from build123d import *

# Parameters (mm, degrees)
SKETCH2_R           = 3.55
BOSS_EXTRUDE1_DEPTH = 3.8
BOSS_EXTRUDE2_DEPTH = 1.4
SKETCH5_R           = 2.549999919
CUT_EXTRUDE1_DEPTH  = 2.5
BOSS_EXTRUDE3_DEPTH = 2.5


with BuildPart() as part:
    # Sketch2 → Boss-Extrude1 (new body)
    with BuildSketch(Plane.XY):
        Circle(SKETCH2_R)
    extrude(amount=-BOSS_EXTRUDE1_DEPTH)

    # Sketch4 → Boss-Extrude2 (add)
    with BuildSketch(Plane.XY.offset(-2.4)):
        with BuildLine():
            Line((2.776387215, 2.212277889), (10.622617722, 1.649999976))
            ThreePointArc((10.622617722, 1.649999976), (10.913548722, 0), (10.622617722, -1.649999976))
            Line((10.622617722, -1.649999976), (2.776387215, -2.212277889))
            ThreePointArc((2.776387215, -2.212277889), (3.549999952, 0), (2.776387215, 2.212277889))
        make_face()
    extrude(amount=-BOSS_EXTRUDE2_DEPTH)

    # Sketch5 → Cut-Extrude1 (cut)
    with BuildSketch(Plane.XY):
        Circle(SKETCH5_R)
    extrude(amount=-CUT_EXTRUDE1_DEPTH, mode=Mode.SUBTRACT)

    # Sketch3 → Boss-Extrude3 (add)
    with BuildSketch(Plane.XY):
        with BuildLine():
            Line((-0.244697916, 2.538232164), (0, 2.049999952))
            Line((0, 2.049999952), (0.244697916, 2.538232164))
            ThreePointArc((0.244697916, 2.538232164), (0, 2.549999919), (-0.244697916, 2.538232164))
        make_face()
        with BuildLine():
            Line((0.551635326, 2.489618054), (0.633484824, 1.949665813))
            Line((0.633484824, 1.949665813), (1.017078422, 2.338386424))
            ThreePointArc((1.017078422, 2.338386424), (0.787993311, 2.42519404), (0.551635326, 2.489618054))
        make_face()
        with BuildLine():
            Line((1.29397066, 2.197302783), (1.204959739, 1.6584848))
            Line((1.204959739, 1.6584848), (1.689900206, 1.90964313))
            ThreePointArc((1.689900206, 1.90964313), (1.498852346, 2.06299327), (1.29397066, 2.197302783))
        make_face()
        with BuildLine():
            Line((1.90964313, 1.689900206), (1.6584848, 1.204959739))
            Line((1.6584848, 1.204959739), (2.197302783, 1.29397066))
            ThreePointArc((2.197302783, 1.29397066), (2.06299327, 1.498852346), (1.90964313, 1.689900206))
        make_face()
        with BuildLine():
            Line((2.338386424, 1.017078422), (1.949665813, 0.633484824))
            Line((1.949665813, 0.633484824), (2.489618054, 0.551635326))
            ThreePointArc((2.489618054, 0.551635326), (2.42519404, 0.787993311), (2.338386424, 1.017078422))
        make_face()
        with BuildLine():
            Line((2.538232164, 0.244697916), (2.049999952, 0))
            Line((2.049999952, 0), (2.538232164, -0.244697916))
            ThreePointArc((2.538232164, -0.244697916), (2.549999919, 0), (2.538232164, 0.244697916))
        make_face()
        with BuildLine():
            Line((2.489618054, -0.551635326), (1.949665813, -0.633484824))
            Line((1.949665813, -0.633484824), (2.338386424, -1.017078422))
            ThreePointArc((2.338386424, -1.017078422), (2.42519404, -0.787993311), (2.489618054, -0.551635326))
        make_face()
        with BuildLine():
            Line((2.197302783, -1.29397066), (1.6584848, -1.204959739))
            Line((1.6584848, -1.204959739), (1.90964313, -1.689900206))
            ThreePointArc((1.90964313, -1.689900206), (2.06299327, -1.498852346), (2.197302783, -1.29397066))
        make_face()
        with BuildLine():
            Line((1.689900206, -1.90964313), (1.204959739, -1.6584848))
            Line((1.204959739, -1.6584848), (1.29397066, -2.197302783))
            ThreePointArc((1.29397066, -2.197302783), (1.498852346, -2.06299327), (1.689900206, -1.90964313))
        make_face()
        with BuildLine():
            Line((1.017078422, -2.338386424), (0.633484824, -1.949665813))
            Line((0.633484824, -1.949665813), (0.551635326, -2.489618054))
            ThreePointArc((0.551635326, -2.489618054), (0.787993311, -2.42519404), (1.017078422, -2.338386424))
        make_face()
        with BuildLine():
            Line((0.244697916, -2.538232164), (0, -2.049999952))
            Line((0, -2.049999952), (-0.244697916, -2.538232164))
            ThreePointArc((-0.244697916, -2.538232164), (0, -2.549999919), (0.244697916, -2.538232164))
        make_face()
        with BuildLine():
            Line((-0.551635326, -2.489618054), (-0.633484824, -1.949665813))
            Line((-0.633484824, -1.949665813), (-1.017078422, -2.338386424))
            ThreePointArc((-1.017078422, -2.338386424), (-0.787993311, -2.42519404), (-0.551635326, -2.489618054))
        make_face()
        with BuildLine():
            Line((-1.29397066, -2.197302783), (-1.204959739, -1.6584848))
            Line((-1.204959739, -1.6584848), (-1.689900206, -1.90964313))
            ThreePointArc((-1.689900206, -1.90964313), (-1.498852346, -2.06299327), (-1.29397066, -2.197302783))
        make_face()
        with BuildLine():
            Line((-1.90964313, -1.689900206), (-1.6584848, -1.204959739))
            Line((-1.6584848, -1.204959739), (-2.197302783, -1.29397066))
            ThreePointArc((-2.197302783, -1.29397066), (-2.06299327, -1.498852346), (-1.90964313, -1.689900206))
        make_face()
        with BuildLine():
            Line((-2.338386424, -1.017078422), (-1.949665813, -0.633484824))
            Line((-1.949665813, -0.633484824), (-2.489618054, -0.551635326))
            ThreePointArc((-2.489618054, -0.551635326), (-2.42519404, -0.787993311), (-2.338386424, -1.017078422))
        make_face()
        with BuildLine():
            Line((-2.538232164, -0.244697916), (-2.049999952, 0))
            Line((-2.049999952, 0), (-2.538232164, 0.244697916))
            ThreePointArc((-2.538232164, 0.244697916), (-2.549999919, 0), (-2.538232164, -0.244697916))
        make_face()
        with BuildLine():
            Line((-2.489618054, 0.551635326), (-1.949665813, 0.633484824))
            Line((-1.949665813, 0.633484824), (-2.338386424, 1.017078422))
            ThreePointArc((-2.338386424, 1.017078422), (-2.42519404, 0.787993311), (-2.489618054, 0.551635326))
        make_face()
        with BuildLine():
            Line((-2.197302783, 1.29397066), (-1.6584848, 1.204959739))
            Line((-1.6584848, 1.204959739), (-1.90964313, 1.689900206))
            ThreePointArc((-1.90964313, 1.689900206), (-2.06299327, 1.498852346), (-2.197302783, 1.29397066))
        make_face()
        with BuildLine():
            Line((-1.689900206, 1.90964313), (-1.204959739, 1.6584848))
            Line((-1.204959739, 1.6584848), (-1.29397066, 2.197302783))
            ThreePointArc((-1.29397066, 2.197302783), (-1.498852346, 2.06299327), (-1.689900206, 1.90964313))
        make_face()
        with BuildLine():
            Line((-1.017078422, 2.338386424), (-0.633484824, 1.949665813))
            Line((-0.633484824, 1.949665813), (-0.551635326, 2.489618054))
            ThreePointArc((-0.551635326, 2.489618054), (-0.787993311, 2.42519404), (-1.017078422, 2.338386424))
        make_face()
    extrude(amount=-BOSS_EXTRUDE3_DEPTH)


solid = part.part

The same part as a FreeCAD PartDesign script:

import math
import FreeCAD as App
import Part
import Sketcher

doc = App.newDocument("Part")
body = doc.addObject("PartDesign::Body", "Body")

# Sketch on XY plane
sketch1 = body.newObject("Sketcher::SketchObject", "Sketch")
sketch1.AttachmentSupport = (doc.getObject("XY_Plane"), [""])
sketch1.MapMode = "FlatFace"
sketch1.addGeometry(Part.Circle(App.Vector(0, 0, 0), App.Vector(0, 0, 1), 3.5), False)
sketch1.addConstraint([
    Sketcher.Constraint("Coincident", 0, 3, -1, 1),
    Sketcher.Constraint("Diameter", 0, 7.1),
])
pad1 = body.newObject("PartDesign::Pad", "Pad")
pad1.Profile = sketch1
pad1.Length = 3.8
pad1.Reversed = True

# Sketch on XY plane
sketch2 = body.newObject("Sketcher::SketchObject", "Sketch001")
sketch2.AttachmentSupport = (doc.getObject("XY_Plane"), [""])
sketch2.MapMode = "FlatFace"
sketch2.AttachmentOffset = App.Placement(App.Vector(0, 0, -2.4), App.Rotation())
sketch2.addGeometry([
    Part.LineSegment(App.Vector(10.6, 1.6, 0), App.Vector(2.8, 2.2, 0)),
    Part.ArcOfCircle(Part.Circle(App.Vector(0, 0, 0), App.Vector(0, 0, 1), 3.5), math.radians(-39), math.radians(39)),
    Part.LineSegment(App.Vector(2.8, -2.2, 0), App.Vector(10.6, -1.6, 0)),
    Part.ArcOfCircle(Part.Circle(App.Vector(6.1, 0, 0), App.Vector(0, 0, 1), 4.8), math.radians(-20), math.radians(20)),
], False)
sketch2.addConstraint([
    Sketcher.Constraint("Coincident", 0, 2, 1, 2),
    Sketcher.Constraint("Coincident", 1, 1, 2, 1),
    Sketcher.Constraint("Coincident", 2, 2, 3, 1),
    Sketcher.Constraint("Coincident", 3, 2, 0, 1),
    Sketcher.Constraint("Coincident", 1, 3, -1, 1),
    Sketcher.Constraint("Symmetric", 2, 2, 3, 2, -1),
    Sketcher.Constraint("Vertical", 0, 2, 1, 1),
    Sketcher.Constraint("Radius", 1, 3.55),
    Sketcher.Constraint("DistanceY", 2, 2, 3, 2, 3.3),
    Sketcher.Constraint("Radius", 3, 4.82441),
    Sketcher.Constraint("Distance", 0, 7.866352),
    Sketcher.Constraint("DistanceX", -1, 1, 3, 3, 6.089139),
])
pad2 = body.newObject("PartDesign::Pad", "Pad001")
pad2.Profile = sketch2
pad2.Length = 1.4
pad2.Reversed = True

# Sketch on XY plane
sketch3 = body.newObject("Sketcher::SketchObject", "Sketch002")
sketch3.AttachmentSupport = (doc.getObject("XY_Plane"), [""])
sketch3.MapMode = "FlatFace"
sketch3.addGeometry(Part.Circle(App.Vector(0, 0, 0), App.Vector(0, 0, 1), 2.5), False)
sketch3.addConstraint([
    Sketcher.Constraint("Coincident", 0, 3, -1, 1),
    Sketcher.Constraint("Diameter", 0, 5.1),
])
pocket1 = body.newObject("PartDesign::Pocket", "Pocket")
pocket1.Profile = sketch3
pocket1.Length = 2.5

# Sketch on XY plane
sketch4 = body.newObject("Sketcher::SketchObject", "Sketch003")
sketch4.AttachmentSupport = (doc.getObject("XY_Plane"), [""])
sketch4.MapMode = "FlatFace"
sketch4.addGeometry([
    Part.LineSegment(App.Vector(-0.24, 2.54, 0), App.Vector(0, 2.05, 0)),  # 0
    Part.LineSegment(App.Vector(0, 2.05, 0), App.Vector(0.24, 2.54, 0)),  # 1
    Part.ArcOfCircle(Part.Circle(App.Vector(0, 0, 0), App.Vector(0, 0, 1), 2.55), math.radians(84.49), math.radians(95.51)),  # 2
    Part.LineSegment(App.Vector(0.55, 2.49, 0), App.Vector(0.63, 1.95, 0)),  # 3
    Part.LineSegment(App.Vector(0.63, 1.95, 0), App.Vector(1.02, 2.34, 0)),  # 4
    Part.ArcOfCircle(Part.Circle(App.Vector(0, 0, 0), App.Vector(0, 0, 1), 2.55), math.radians(66.49), math.radians(77.51)),  # 5
    Part.LineSegment(App.Vector(1.29, 2.2, 0), App.Vector(1.2, 1.66, 0)),  # 6
    Part.LineSegment(App.Vector(1.2, 1.66, 0), App.Vector(1.69, 1.91, 0)),  # 7
    Part.ArcOfCircle(Part.Circle(App.Vector(0, 0, 0), App.Vector(0, 0, 1), 2.55), math.radians(48.49), math.radians(59.51)),  # 8
    Part.LineSegment(App.Vector(1.91, 1.69, 0), App.Vector(1.66, 1.2, 0)),  # 9
    Part.LineSegment(App.Vector(1.66, 1.2, 0), App.Vector(2.2, 1.29, 0)),  # 10
    Part.ArcOfCircle(Part.Circle(App.Vector(0, 0, 0), App.Vector(0, 0, 1), 2.55), math.radians(30.49), math.radians(41.51)),  # 11
    Part.LineSegment(App.Vector(2.34, 1.02, 0), App.Vector(1.95, 0.63, 0)),  # 12
    Part.LineSegment(App.Vector(1.95, 0.63, 0), App.Vector(2.49, 0.55, 0)),  # 13
    Part.ArcOfCircle(Part.Circle(App.Vector(0, 0, 0), App.Vector(0, 0, 1), 2.55), math.radians(12.49), math.radians(23.51)),  # 14
    Part.LineSegment(App.Vector(2.54, 0.24, 0), App.Vector(2.05, 0, 0)),  # 15
    Part.LineSegment(App.Vector(2.05, 0, 0), App.Vector(2.54, -0.24, 0)),  # 16
    Part.ArcOfCircle(Part.Circle(App.Vector(0, 0, 0), App.Vector(0, 0, 1), 2.55), math.radians(-5.51), math.radians(5.51)),  # 17
    Part.LineSegment(App.Vector(2.49, -0.55, 0), App.Vector(1.95, -0.63, 0)),  # 18
    Part.LineSegment(App.Vector(1.95, -0.63, 0), App.Vector(2.34, -1.02, 0)),  # 19
    Part.ArcOfCircle(Part.Circle(App.Vector(0, 0, 0), App.Vector(0, 0, 1), 2.55), math.radians(-23.51), math.radians(-12.49)),  # 20
    Part.LineSegment(App.Vector(2.2, -1.29, 0), App.Vector(1.66, -1.2, 0)),  # 21
    Part.LineSegment(App.Vector(1.66, -1.2, 0), App.Vector(1.91, -1.69, 0)),  # 22
    Part.ArcOfCircle(Part.Circle(App.Vector(0, 0, 0), App.Vector(0, 0, 1), 2.55), math.radians(-41.51), math.radians(-30.49)),  # 23
    Part.LineSegment(App.Vector(1.69, -1.91, 0), App.Vector(1.2, -1.66, 0)),  # 24
    Part.LineSegment(App.Vector(1.2, -1.66, 0), App.Vector(1.29, -2.2, 0)),  # 25
    Part.ArcOfCircle(Part.Circle(App.Vector(0, 0, 0), App.Vector(0, 0, 1), 2.55), math.radians(-59.51), math.radians(-48.49)),  # 26
    Part.LineSegment(App.Vector(1.02, -2.34, 0), App.Vector(0.63, -1.95, 0)),  # 27
    Part.LineSegment(App.Vector(0.63, -1.95, 0), App.Vector(0.55, -2.49, 0)),  # 28
    Part.ArcOfCircle(Part.Circle(App.Vector(0, 0, 0), App.Vector(0, 0, 1), 2.55), math.radians(-77.51), math.radians(-66.49)),  # 29
    Part.LineSegment(App.Vector(0.24, -2.54, 0), App.Vector(0, -2.05, 0)),  # 30
    Part.LineSegment(App.Vector(0, -2.05, 0), App.Vector(-0.24, -2.54, 0)),  # 31
    Part.ArcOfCircle(Part.Circle(App.Vector(0, 0, 0), App.Vector(0, 0, 1), 2.55), math.radians(-95.51), math.radians(-84.49)),  # 32
    Part.LineSegment(App.Vector(-0.55, -2.49, 0), App.Vector(-0.63, -1.95, 0)),  # 33
    Part.LineSegment(App.Vector(-0.63, -1.95, 0), App.Vector(-1.02, -2.34, 0)),  # 34
    Part.ArcOfCircle(Part.Circle(App.Vector(0, 0, 0), App.Vector(0, 0, 1), 2.55), math.radians(-113.51), math.radians(-102.49)),  # 35
    Part.LineSegment(App.Vector(-1.29, -2.2, 0), App.Vector(-1.2, -1.66, 0)),  # 36
    Part.LineSegment(App.Vector(-1.2, -1.66, 0), App.Vector(-1.69, -1.91, 0)),  # 37
    Part.ArcOfCircle(Part.Circle(App.Vector(0, 0, 0), App.Vector(0, 0, 1), 2.55), math.radians(-131.51), math.radians(-120.49)),  # 38
    Part.LineSegment(App.Vector(-1.91, -1.69, 0), App.Vector(-1.66, -1.2, 0)),  # 39
    Part.LineSegment(App.Vector(-1.66, -1.2, 0), App.Vector(-2.2, -1.29, 0)),  # 40
    Part.ArcOfCircle(Part.Circle(App.Vector(0, 0, 0), App.Vector(0, 0, 1), 2.55), math.radians(-149.51), math.radians(-138.49)),  # 41
    Part.LineSegment(App.Vector(-2.34, -1.02, 0), App.Vector(-1.95, -0.63, 0)),  # 42
    Part.LineSegment(App.Vector(-1.95, -0.63, 0), App.Vector(-2.49, -0.55, 0)),  # 43
    Part.ArcOfCircle(Part.Circle(App.Vector(0, 0, 0), App.Vector(0, 0, 1), 2.55), math.radians(-167.51), math.radians(-156.49)),  # 44
    Part.LineSegment(App.Vector(-2.54, -0.24, 0), App.Vector(-2.05, 0, 0)),  # 45
    Part.LineSegment(App.Vector(-2.05, 0, 0), App.Vector(-2.54, 0.24, 0)),  # 46
    Part.ArcOfCircle(Part.Circle(App.Vector(0, 0, 0), App.Vector(0, 0, 1), 2.55), math.radians(174.49), math.radians(185.51)),  # 47
    Part.LineSegment(App.Vector(-2.49, 0.55, 0), App.Vector(-1.95, 0.63, 0)),  # 48
    Part.LineSegment(App.Vector(-1.95, 0.63, 0), App.Vector(-2.34, 1.02, 0)),  # 49
    Part.ArcOfCircle(Part.Circle(App.Vector(0, 0, 0), App.Vector(0, 0, 1), 2.55), math.radians(156.49), math.radians(167.51)),  # 50
    Part.LineSegment(App.Vector(-2.2, 1.29, 0), App.Vector(-1.66, 1.2, 0)),  # 51
    Part.LineSegment(App.Vector(-1.66, 1.2, 0), App.Vector(-1.91, 1.69, 0)),  # 52
    Part.ArcOfCircle(Part.Circle(App.Vector(0, 0, 0), App.Vector(0, 0, 1), 2.55), math.radians(138.49), math.radians(149.51)),  # 53
    Part.LineSegment(App.Vector(-1.69, 1.91, 0), App.Vector(-1.2, 1.66, 0)),  # 54
    Part.LineSegment(App.Vector(-1.2, 1.66, 0), App.Vector(-1.29, 2.2, 0)),  # 55
    Part.ArcOfCircle(Part.Circle(App.Vector(0, 0, 0), App.Vector(0, 0, 1), 2.55), math.radians(120.49), math.radians(131.51)),  # 56
    Part.LineSegment(App.Vector(-1.02, 2.34, 0), App.Vector(-0.63, 1.95, 0)),  # 57
    Part.LineSegment(App.Vector(-0.63, 1.95, 0), App.Vector(-0.55, 2.49, 0)),  # 58
    Part.ArcOfCircle(Part.Circle(App.Vector(0, 0, 0), App.Vector(0, 0, 1), 2.55), math.radians(102.49), math.radians(113.51)),  # 59
], False)
sketch4.addConstraint([
    Sketcher.Constraint("Coincident", 0, 2, 1, 1),
    Sketcher.Constraint("Coincident", 1, 2, 2, 1),
    Sketcher.Constraint("Coincident", 2, 2, 0, 1),
    Sketcher.Constraint("Coincident", 3, 2, 4, 1),
    Sketcher.Constraint("Coincident", 4, 2, 5, 1),
    Sketcher.Constraint("Coincident", 5, 2, 3, 1),
    Sketcher.Constraint("Coincident", 6, 2, 7, 1),
    Sketcher.Constraint("Coincident", 7, 2, 8, 1),
    Sketcher.Constraint("Coincident", 8, 2, 6, 1),
    Sketcher.Constraint("Coincident", 9, 2, 10, 1),
    Sketcher.Constraint("Coincident", 10, 2, 11, 1),
    Sketcher.Constraint("Coincident", 11, 2, 9, 1),
    Sketcher.Constraint("Coincident", 12, 2, 13, 1),
    Sketcher.Constraint("Coincident", 13, 2, 14, 1),
    Sketcher.Constraint("Coincident", 14, 2, 12, 1),
    Sketcher.Constraint("Coincident", 15, 2, 16, 1),
    Sketcher.Constraint("Coincident", 16, 2, 17, 1),
    Sketcher.Constraint("Coincident", 17, 2, 15, 1),
    Sketcher.Constraint("Coincident", 18, 2, 19, 1),
    Sketcher.Constraint("Coincident", 19, 2, 20, 1),
    Sketcher.Constraint("Coincident", 20, 2, 18, 1),
    Sketcher.Constraint("Coincident", 21, 2, 22, 1),
    Sketcher.Constraint("Coincident", 22, 2, 23, 1),
    Sketcher.Constraint("Coincident", 23, 2, 21, 1),
    Sketcher.Constraint("Coincident", 24, 2, 25, 1),
    Sketcher.Constraint("Coincident", 25, 2, 26, 1),
    Sketcher.Constraint("Coincident", 26, 2, 24, 1),
    Sketcher.Constraint("Coincident", 27, 2, 28, 1),
    Sketcher.Constraint("Coincident", 28, 2, 29, 1),
    Sketcher.Constraint("Coincident", 29, 2, 27, 1),
    Sketcher.Constraint("Coincident", 30, 2, 31, 1),
    Sketcher.Constraint("Coincident", 31, 2, 32, 1),
    Sketcher.Constraint("Coincident", 32, 2, 30, 1),
    Sketcher.Constraint("Coincident", 33, 2, 34, 1),
    Sketcher.Constraint("Coincident", 34, 2, 35, 1),
    Sketcher.Constraint("Coincident", 35, 2, 33, 1),
    Sketcher.Constraint("Coincident", 36, 2, 37, 1),
    Sketcher.Constraint("Coincident", 37, 2, 38, 1),
    Sketcher.Constraint("Coincident", 38, 2, 36, 1),
    Sketcher.Constraint("Coincident", 39, 2, 40, 1),
    Sketcher.Constraint("Coincident", 40, 2, 41, 1),
    Sketcher.Constraint("Coincident", 41, 2, 39, 1),
    Sketcher.Constraint("Coincident", 42, 2, 43, 1),
    Sketcher.Constraint("Coincident", 43, 2, 44, 1),
    Sketcher.Constraint("Coincident", 44, 2, 42, 1),
    Sketcher.Constraint("Coincident", 45, 2, 46, 1),
    Sketcher.Constraint("Coincident", 46, 2, 47, 1),
    Sketcher.Constraint("Coincident", 47, 2, 45, 1),
    Sketcher.Constraint("Coincident", 48, 2, 49, 1),
    Sketcher.Constraint("Coincident", 49, 2, 50, 1),
    Sketcher.Constraint("Coincident", 50, 2, 48, 1),
    Sketcher.Constraint("Coincident", 51, 2, 52, 1),
    Sketcher.Constraint("Coincident", 52, 2, 53, 1),
    Sketcher.Constraint("Coincident", 53, 2, 51, 1),
    Sketcher.Constraint("Coincident", 54, 2, 55, 1),
    Sketcher.Constraint("Coincident", 55, 2, 56, 1),
    Sketcher.Constraint("Coincident", 56, 2, 54, 1),
    Sketcher.Constraint("Coincident", 57, 2, 58, 1),
    Sketcher.Constraint("Coincident", 58, 2, 59, 1),
    Sketcher.Constraint("Coincident", 59, 2, 57, 1),
    Sketcher.Constraint("Coincident", 2, 3, -1, 1),
    Sketcher.Constraint("Coincident", 5, 3, -1, 1),
    Sketcher.Constraint("Coincident", 8, 3, -1, 1),
    Sketcher.Constraint("Coincident", 11, 3, -1, 1),
    Sketcher.Constraint("Coincident", 14, 3, -1, 1),
    Sketcher.Constraint("Coincident", 17, 3, -1, 1),
    Sketcher.Constraint("Coincident", 20, 3, -1, 1),
    Sketcher.Constraint("Coincident", 23, 3, -1, 1),
    Sketcher.Constraint("Coincident", 26, 3, -1, 1),
    Sketcher.Constraint("Coincident", 29, 3, -1, 1),
    Sketcher.Constraint("Coincident", 32, 3, -1, 1),
    Sketcher.Constraint("Coincident", 35, 3, -1, 1),
    Sketcher.Constraint("Coincident", 38, 3, -1, 1),
    Sketcher.Constraint("Coincident", 41, 3, -1, 1),
    Sketcher.Constraint("Coincident", 44, 3, -1, 1),
    Sketcher.Constraint("Coincident", 47, 3, -1, 1),
    Sketcher.Constraint("Coincident", 50, 3, -1, 1),
    Sketcher.Constraint("Coincident", 53, 3, -1, 1),
    Sketcher.Constraint("Coincident", 56, 3, -1, 1),
    Sketcher.Constraint("Coincident", 59, 3, -1, 1),
    Sketcher.Constraint("Equal", 2, 5),
    Sketcher.Constraint("Equal", 5, 8),
    Sketcher.Constraint("Equal", 8, 11),
    Sketcher.Constraint("Equal", 11, 14),
    Sketcher.Constraint("Equal", 14, 17),
    Sketcher.Constraint("Equal", 17, 20),
    Sketcher.Constraint("Equal", 20, 23),
    Sketcher.Constraint("Equal", 23, 26),
    Sketcher.Constraint("Equal", 26, 29),
    Sketcher.Constraint("Equal", 29, 32),
    Sketcher.Constraint("Equal", 32, 35),
    Sketcher.Constraint("Equal", 35, 38),
    Sketcher.Constraint("Equal", 38, 41),
    Sketcher.Constraint("Equal", 41, 44),
    Sketcher.Constraint("Equal", 44, 47),
    Sketcher.Constraint("Equal", 47, 50),
    Sketcher.Constraint("Equal", 50, 53),
    Sketcher.Constraint("Equal", 53, 56),
    Sketcher.Constraint("Equal", 56, 59),
    Sketcher.Constraint("Symmetric", 0, 2, 30, 2, -1, 1),
    Sketcher.Constraint("Symmetric", 3, 2, 33, 2, -1, 1),
    Sketcher.Constraint("Symmetric", 6, 2, 36, 2, -1, 1),
    Sketcher.Constraint("Symmetric", 9, 2, 39, 2, -1, 1),
    Sketcher.Constraint("Symmetric", 12, 2, 42, 2, -1, 1),
    Sketcher.Constraint("Symmetric", 15, 2, 45, 2, -1, 1),
    Sketcher.Constraint("Symmetric", 18, 2, 48, 2, -1, 1),
    Sketcher.Constraint("Symmetric", 21, 2, 51, 2, -1, 1),
    Sketcher.Constraint("Symmetric", 24, 2, 54, 2, -1, 1),
    Sketcher.Constraint("Symmetric", 27, 2, 57, 2, -1, 1),
    Sketcher.Constraint("Symmetric", 27, 2, 33, 2, -2),
    Sketcher.Constraint("Symmetric", 24, 2, 36, 2, -2),
    Sketcher.Constraint("Symmetric", 21, 2, 39, 2, -2),
    Sketcher.Constraint("Symmetric", 18, 2, 42, 2, -2),
    Sketcher.Constraint("PointOnObject", 0, 2, -2),
    Sketcher.Constraint("PointOnObject", 15, 2, -1),
    Sketcher.Constraint("Perpendicular", 0, 15),
    Sketcher.Constraint("Perpendicular", 1, 16),
    Sketcher.Constraint("Perpendicular", 3, 18),
    Sketcher.Constraint("Perpendicular", 4, 19),
    Sketcher.Constraint("Perpendicular", 6, 21),
    Sketcher.Constraint("Perpendicular", 7, 22),
    Sketcher.Constraint("Perpendicular", 9, 24),
    Sketcher.Constraint("Perpendicular", 10, 25),
    Sketcher.Constraint("Perpendicular", 12, 27),
    Sketcher.Constraint("Perpendicular", 13, 28),
    Sketcher.Constraint("Perpendicular", 15, 30),
    Sketcher.Constraint("Perpendicular", 16, 31),
    Sketcher.Constraint("Perpendicular", 18, 33),
    Sketcher.Constraint("Perpendicular", 19, 34),
    Sketcher.Constraint("Perpendicular", 21, 36),
    Sketcher.Constraint("Perpendicular", 22, 37),
    Sketcher.Constraint("Perpendicular", 24, 39),
    Sketcher.Constraint("Perpendicular", 25, 40),
    Sketcher.Constraint("Perpendicular", 27, 42),
    Sketcher.Constraint("Perpendicular", 28, 43),
    Sketcher.Constraint("Perpendicular", 30, 45),
    Sketcher.Constraint("Perpendicular", 31, 46),
    Sketcher.Constraint("Perpendicular", 33, 48),
    Sketcher.Constraint("Perpendicular", 34, 49),
    Sketcher.Constraint("Perpendicular", 36, 51),
    Sketcher.Constraint("Perpendicular", 37, 52),
    Sketcher.Constraint("Perpendicular", 39, 54),
    Sketcher.Constraint("Perpendicular", 40, 55),
    Sketcher.Constraint("Perpendicular", 42, 57),
    Sketcher.Constraint("Perpendicular", 43, 58),
    Sketcher.Constraint("Horizontal", 1, 2, 2, 2),
    Sketcher.Constraint("Horizontal", 29, 2, 34, 2),
    Sketcher.Constraint("Horizontal", 28, 2, 35, 2),
    Sketcher.Constraint("Horizontal", 26, 2, 37, 2),
    Sketcher.Constraint("Horizontal", 25, 2, 38, 2),
    Sketcher.Constraint("Equal", 1, 3),
    Sketcher.Constraint("Equal", 3, 4),
    Sketcher.Constraint("Equal", 4, 6),
    Sketcher.Constraint("Equal", 6, 7),
    Sketcher.Constraint("Equal", 7, 9),
    Sketcher.Constraint("Equal", 9, 10),
    Sketcher.Constraint("Equal", 10, 12),
    Sketcher.Constraint("Equal", 12, 13),
    Sketcher.Constraint("Equal", 13, 15),
    Sketcher.Constraint("Radius", 2, 2.55),
    Sketcher.Constraint("DistanceY", -1, 1, 0, 2, 2.05),
    Sketcher.Constraint("DistanceX", -1, 1, 7, 2, 1.6899),
    Sketcher.Constraint("Distance", 0, 0.546121),
    Sketcher.Constraint("DistanceX", -1, 1, 4, 2, 1.017078),
    Sketcher.Constraint("DistanceY", -1, 1, 5, 2, 2.489618),
    Sketcher.Constraint("DistanceX", -1, 1, 6, 2, 1.20496),
])
pad3 = body.newObject("PartDesign::Pad", "Pad002")
pad3.Profile = sketch4
pad3.Length = 2.5
pad3.Reversed = True

doc.recompute()
